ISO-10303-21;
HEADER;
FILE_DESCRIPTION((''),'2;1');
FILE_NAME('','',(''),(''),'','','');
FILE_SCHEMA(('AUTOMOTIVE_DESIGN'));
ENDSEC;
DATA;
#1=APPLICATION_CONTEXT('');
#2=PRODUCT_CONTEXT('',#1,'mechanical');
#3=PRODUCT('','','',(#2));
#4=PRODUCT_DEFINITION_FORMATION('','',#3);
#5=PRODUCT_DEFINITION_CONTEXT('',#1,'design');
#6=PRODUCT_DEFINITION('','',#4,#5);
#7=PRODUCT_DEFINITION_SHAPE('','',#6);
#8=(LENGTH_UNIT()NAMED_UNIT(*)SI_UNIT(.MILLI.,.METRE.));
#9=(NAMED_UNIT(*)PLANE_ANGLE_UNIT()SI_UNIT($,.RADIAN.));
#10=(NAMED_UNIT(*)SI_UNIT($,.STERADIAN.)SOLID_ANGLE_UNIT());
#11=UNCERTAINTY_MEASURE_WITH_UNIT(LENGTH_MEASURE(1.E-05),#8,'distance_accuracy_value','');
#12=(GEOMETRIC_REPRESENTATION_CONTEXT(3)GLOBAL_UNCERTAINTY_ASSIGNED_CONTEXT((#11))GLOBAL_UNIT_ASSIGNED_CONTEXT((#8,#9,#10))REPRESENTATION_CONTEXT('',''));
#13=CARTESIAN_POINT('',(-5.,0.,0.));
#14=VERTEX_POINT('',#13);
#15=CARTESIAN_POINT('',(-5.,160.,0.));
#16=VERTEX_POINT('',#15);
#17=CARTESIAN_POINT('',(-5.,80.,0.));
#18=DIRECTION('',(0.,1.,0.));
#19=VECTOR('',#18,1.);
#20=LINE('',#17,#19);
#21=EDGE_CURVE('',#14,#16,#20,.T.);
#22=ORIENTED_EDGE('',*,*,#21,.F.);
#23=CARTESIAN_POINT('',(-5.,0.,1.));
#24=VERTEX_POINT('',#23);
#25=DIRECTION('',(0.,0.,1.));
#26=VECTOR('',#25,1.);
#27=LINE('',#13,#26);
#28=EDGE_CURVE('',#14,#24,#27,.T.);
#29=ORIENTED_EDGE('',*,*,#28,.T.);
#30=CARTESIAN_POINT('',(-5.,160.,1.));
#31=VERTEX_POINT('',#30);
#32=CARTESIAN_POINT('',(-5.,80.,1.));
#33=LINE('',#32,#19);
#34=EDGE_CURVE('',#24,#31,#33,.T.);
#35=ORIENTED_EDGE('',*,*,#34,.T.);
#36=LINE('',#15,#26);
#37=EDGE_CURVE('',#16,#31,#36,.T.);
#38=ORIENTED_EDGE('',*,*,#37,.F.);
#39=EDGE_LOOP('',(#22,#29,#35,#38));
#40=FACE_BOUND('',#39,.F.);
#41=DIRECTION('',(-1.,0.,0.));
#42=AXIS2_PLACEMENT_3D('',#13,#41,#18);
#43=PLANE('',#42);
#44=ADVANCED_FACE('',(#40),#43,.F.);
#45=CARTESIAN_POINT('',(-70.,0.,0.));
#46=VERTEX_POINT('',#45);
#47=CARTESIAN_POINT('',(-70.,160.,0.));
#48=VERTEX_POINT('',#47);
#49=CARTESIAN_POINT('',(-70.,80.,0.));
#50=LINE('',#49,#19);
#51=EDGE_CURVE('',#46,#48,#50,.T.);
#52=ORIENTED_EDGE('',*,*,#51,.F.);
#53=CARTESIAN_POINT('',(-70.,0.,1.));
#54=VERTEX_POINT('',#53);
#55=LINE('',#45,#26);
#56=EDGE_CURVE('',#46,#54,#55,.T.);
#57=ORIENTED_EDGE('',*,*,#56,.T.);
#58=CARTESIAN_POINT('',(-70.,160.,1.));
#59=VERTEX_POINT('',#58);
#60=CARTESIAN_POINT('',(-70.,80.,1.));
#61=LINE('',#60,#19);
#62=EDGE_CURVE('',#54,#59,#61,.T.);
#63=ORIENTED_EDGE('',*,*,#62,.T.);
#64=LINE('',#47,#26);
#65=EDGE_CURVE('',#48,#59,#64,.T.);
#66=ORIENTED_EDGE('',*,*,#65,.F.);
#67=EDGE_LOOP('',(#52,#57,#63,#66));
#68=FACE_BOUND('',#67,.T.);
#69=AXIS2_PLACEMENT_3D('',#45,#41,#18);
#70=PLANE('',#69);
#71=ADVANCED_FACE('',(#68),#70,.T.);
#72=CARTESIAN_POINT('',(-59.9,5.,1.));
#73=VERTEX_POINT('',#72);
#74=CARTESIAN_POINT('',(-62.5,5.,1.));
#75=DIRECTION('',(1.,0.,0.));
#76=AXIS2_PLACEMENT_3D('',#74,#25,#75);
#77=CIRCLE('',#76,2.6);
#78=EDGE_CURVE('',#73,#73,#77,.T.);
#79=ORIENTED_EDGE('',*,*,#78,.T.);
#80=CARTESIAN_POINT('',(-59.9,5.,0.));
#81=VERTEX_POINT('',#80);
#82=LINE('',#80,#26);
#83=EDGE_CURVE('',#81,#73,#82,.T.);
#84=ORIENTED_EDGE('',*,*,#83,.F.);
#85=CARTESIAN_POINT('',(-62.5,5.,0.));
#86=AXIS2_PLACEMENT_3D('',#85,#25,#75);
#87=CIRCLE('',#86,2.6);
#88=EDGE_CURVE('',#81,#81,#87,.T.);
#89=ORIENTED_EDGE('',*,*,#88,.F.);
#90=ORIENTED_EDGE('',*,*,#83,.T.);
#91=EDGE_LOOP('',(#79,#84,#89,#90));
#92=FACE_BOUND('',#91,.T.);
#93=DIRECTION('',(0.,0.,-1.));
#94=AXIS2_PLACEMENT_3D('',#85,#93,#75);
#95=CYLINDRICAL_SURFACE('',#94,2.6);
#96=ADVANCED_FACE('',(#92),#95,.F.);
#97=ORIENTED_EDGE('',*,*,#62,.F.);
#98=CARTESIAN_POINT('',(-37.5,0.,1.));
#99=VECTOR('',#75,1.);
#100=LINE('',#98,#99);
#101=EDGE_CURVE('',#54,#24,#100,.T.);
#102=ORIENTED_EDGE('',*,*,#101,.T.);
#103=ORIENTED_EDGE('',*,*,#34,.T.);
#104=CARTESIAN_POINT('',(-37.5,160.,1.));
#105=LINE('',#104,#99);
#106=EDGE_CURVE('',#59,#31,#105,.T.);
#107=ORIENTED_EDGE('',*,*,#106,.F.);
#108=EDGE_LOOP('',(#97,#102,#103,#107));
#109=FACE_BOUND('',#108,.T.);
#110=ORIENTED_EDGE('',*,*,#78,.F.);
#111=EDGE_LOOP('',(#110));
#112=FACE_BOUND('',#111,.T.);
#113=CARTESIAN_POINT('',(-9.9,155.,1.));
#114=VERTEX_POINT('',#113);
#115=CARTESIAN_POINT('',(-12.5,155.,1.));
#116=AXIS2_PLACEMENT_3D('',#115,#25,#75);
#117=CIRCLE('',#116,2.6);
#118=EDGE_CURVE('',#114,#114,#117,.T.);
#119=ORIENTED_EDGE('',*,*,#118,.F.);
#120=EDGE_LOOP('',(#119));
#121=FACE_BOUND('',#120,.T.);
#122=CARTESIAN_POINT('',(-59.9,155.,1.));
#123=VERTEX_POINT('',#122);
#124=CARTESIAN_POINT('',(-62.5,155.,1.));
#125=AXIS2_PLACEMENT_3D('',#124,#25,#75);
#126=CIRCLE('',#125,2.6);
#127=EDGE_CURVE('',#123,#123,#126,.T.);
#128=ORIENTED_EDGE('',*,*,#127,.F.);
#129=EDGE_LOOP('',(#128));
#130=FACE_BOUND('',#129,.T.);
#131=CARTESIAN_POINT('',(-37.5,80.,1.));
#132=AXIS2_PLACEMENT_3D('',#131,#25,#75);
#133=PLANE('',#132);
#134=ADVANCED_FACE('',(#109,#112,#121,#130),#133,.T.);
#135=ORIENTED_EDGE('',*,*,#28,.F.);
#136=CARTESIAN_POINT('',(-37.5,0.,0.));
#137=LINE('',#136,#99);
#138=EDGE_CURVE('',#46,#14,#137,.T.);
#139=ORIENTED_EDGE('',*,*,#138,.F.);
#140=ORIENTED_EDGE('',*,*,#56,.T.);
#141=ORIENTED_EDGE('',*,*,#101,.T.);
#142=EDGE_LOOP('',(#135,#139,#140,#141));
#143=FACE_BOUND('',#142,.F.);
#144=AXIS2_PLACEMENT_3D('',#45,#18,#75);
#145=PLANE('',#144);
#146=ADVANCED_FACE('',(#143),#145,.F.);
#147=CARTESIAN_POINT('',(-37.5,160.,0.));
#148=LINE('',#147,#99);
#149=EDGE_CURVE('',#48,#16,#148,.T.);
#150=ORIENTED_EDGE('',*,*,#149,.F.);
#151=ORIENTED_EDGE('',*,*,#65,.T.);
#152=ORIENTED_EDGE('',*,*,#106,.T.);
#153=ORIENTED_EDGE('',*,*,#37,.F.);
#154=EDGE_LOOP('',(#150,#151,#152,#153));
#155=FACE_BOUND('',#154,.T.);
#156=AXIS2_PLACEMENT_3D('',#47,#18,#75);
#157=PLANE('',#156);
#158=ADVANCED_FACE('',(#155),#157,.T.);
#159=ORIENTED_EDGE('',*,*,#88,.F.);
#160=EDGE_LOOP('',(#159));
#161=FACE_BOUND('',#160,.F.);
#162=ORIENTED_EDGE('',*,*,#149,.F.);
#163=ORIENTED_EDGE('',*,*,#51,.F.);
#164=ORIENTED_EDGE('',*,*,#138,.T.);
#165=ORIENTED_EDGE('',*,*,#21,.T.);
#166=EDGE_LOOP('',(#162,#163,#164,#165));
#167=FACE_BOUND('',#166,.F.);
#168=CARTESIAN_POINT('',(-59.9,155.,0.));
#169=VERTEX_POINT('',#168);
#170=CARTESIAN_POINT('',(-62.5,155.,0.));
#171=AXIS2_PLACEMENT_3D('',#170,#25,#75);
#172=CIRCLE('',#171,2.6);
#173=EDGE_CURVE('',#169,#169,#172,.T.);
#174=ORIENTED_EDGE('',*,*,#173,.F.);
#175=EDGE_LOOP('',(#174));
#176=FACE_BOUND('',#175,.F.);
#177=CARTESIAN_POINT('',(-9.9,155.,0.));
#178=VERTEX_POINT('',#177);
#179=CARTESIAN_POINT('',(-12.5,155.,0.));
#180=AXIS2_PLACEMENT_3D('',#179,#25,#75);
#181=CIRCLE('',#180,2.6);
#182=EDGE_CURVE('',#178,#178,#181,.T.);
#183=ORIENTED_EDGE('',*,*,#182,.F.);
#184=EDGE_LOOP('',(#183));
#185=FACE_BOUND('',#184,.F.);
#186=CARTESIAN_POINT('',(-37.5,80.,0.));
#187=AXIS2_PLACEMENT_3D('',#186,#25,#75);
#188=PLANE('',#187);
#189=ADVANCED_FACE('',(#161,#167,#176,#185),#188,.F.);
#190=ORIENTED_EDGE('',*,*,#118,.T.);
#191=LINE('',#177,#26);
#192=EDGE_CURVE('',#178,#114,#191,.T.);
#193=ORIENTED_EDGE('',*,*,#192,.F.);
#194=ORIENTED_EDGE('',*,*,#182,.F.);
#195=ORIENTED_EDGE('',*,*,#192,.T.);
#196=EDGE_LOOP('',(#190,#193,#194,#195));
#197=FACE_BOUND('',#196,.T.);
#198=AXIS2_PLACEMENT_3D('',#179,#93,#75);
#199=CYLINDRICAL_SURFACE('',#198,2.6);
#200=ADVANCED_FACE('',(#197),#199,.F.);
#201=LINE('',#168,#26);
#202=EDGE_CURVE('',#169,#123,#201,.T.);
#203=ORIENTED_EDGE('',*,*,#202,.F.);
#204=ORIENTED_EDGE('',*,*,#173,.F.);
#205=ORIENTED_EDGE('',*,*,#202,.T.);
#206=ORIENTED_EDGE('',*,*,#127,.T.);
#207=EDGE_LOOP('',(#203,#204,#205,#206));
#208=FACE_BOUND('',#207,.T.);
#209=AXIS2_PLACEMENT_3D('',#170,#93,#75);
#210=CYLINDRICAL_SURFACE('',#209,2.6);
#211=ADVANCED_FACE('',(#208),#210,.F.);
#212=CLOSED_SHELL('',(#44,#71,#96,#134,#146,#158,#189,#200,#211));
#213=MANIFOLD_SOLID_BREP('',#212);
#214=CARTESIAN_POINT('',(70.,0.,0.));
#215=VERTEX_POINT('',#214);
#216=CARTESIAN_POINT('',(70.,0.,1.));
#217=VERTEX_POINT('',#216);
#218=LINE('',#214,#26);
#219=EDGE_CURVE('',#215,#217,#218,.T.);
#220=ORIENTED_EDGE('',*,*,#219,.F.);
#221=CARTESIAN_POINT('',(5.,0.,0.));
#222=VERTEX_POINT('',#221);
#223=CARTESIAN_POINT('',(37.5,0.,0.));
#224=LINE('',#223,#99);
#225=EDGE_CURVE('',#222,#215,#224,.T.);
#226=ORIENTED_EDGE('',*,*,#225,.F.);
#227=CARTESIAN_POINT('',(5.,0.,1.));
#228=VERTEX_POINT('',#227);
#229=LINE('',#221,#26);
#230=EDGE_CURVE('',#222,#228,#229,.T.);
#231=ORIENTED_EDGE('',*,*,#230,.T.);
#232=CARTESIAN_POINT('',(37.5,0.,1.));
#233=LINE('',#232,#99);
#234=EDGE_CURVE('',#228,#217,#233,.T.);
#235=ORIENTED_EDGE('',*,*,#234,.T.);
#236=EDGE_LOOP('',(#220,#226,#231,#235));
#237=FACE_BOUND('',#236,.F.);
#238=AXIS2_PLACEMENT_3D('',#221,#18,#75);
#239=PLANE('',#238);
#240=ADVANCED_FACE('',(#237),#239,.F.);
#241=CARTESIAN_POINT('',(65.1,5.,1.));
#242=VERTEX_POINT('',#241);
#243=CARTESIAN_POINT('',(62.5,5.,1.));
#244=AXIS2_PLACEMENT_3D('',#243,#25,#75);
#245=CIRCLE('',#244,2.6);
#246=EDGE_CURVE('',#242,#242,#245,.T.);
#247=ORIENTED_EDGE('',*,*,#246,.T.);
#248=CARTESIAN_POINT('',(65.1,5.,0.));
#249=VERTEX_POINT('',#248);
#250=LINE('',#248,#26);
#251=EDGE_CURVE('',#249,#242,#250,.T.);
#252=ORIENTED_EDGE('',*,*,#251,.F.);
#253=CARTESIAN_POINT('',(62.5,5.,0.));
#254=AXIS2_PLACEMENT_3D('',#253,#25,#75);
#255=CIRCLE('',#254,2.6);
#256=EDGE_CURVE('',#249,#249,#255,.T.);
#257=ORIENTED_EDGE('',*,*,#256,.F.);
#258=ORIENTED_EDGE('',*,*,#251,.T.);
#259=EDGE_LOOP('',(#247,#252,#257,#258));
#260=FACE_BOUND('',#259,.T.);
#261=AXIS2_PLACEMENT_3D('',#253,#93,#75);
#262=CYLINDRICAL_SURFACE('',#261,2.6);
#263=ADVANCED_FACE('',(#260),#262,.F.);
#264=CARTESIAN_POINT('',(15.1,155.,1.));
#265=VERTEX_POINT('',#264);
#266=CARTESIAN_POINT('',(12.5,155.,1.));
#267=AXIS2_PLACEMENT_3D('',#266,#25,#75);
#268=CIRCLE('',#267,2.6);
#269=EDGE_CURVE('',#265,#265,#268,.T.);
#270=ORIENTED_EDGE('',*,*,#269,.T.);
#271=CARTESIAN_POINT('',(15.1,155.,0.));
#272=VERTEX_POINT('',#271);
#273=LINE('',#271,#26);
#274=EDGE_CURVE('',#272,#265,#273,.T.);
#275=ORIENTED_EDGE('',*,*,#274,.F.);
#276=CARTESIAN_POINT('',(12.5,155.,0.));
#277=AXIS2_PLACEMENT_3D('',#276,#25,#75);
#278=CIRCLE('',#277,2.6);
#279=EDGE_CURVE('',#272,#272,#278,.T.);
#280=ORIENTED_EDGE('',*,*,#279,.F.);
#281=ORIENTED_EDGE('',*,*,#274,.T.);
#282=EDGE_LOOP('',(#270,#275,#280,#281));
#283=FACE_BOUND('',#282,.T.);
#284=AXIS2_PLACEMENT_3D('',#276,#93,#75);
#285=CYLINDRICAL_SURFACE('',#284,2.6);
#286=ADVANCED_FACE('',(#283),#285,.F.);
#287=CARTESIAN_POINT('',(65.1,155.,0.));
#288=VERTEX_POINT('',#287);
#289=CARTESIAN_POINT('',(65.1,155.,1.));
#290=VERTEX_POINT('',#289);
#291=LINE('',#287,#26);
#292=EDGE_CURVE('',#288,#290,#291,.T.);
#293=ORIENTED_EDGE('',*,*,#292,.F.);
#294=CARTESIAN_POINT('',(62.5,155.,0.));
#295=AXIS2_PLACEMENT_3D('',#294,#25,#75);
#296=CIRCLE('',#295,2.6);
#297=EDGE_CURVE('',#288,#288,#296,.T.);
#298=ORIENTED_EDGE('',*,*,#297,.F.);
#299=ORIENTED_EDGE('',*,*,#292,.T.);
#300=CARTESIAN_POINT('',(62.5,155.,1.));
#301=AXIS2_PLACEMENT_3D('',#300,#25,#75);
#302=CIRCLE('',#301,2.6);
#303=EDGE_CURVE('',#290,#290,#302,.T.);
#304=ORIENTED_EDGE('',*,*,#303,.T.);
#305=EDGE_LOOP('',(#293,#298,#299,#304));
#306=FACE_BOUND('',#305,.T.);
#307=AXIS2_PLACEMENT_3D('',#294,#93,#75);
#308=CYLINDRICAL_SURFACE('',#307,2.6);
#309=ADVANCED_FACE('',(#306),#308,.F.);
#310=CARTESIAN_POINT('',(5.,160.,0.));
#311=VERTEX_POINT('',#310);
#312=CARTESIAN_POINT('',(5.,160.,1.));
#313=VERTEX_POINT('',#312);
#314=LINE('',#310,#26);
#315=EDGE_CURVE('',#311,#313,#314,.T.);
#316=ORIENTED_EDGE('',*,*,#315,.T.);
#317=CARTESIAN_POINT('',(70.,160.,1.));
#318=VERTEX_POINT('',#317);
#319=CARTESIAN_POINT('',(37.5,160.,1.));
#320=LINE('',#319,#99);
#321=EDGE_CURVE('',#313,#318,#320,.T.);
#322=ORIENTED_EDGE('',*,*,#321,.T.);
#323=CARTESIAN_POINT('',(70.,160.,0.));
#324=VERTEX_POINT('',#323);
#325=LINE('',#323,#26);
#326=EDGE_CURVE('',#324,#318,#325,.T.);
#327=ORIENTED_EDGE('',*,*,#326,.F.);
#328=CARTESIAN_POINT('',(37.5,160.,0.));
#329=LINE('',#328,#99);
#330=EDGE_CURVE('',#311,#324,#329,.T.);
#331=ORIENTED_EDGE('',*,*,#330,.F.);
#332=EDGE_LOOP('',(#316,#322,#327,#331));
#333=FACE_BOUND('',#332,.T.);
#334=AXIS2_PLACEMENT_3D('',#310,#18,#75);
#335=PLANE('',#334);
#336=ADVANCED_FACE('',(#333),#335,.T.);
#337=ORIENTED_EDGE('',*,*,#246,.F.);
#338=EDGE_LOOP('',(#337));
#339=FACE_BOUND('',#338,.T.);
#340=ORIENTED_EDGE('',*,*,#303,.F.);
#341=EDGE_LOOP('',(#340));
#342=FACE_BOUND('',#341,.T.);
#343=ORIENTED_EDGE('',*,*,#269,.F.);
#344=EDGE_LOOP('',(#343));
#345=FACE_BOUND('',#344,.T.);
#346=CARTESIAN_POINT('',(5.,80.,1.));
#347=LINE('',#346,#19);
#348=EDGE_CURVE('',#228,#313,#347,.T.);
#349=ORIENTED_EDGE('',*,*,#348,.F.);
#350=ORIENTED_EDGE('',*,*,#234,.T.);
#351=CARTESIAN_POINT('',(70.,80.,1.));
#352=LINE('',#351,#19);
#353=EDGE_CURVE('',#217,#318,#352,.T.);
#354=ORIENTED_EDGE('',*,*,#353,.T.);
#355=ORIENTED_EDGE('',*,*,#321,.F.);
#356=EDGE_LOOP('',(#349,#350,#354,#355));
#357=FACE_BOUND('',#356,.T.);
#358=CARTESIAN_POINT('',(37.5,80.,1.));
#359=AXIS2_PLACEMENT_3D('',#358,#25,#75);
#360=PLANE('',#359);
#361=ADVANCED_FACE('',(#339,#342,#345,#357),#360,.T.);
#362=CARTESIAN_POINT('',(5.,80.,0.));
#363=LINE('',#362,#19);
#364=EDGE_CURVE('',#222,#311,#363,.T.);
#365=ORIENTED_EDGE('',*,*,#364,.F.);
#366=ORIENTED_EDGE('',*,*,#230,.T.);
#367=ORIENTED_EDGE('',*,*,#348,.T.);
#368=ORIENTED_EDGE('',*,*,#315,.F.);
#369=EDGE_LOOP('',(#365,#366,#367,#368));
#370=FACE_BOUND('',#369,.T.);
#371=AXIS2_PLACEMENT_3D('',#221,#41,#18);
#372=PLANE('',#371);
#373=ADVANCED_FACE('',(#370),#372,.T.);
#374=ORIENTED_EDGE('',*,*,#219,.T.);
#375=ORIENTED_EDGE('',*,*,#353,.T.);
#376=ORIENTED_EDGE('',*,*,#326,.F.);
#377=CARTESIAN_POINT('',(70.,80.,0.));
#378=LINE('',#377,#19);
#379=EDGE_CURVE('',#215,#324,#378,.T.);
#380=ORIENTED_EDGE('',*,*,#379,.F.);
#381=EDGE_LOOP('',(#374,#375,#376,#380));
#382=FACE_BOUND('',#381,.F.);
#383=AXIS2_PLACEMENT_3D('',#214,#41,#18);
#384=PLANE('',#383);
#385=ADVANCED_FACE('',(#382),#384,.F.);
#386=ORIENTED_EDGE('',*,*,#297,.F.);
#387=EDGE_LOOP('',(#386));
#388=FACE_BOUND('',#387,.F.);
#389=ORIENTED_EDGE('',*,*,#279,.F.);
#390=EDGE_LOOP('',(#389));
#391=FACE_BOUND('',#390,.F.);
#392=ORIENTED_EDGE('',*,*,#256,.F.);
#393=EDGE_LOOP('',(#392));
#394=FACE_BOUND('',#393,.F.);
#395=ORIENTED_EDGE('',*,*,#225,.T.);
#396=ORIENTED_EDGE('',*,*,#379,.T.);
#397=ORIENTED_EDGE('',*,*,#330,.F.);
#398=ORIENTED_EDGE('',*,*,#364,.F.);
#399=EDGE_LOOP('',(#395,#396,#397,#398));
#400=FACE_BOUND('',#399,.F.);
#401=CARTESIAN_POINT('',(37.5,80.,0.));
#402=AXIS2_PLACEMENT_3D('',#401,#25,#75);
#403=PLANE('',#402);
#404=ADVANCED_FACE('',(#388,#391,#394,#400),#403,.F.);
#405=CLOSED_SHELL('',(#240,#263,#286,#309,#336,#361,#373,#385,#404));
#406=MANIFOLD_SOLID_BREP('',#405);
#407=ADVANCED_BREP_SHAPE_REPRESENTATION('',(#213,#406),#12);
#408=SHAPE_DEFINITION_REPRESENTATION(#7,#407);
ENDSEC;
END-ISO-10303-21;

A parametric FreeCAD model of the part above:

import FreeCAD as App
import Part
import Sketcher
Q = App.Units.Quantity

doc = App.newDocument("Part")
body = doc.addObject("PartDesign::Body", "Body")
body.AllowCompound = True

# Sketch on XY plane
sketch1 = body.newObject("Sketcher::SketchObject", "Sketch")
sketch1.AttachmentSupport = (doc.getObject("XY_Plane"), [""])
sketch1.MapMode = "FlatFace"
sketch1.addGeometry([
    Part.LineSegment(App.Vector(5, 160, 0), App.Vector(5, 0, 0)),  # 0
    Part.LineSegment(App.Vector(5, 0, 0), App.Vector(70, 0, 0)),  # 1
    Part.LineSegment(App.Vector(70, 0, 0), App.Vector(70, 160, 0)),  # 2
    Part.LineSegment(App.Vector(70, 160, 0), App.Vector(5, 160, 0)),  # 3
    Part.Circle(App.Vector(62.5, 5, 0), App.Vector(0, 0, 1), 2.6),  # 4
    Part.Circle(App.Vector(12.5, 155, 0), App.Vector(0, 0, 1), 2.6),  # 5
    Part.Circle(App.Vector(62.5, 155, 0), App.Vector(0, 0, 1), 2.6),  # 6
    Part.LineSegment(App.Vector(-70, 160, 0), App.Vector(-70, 0, 0)),  # 7
    Part.LineSegment(App.Vector(-70, 0, 0), App.Vector(-5, 0, 0)),  # 8
    Part.LineSegment(App.Vector(-5, 0, 0), App.Vector(-5, 160, 0)),  # 9
    Part.LineSegment(App.Vector(-5, 160, 0), App.Vector(-70, 160, 0)),  # 10
    Part.Circle(App.Vector(-62.5, 5, 0), App.Vector(0, 0, 1), 2.6),  # 11
    Part.Circle(App.Vector(-62.5, 155, 0), App.Vector(0, 0, 1), 2.6),  # 12
    Part.Circle(App.Vector(-12.5, 155, 0), App.Vector(0, 0, 1), 2.6),  # 13
], False)
sketch1.addConstraint([
    Sketcher.Constraint("Coincident", 0, 2, 1, 1),
    Sketcher.Constraint("Coincident", 1, 2, 2, 1),
    Sketcher.Constraint("Coincident", 2, 2, 3, 1),
    Sketcher.Constraint("Coincident", 3, 2, 0, 1),
    Sketcher.Constraint("Coincident", 7, 2, 8, 1),
    Sketcher.Constraint("Coincident", 8, 2, 9, 1),
    Sketcher.Constraint("Coincident", 9, 2, 10, 1),
    Sketcher.Constraint("Coincident", 10, 2, 7, 1),
    Sketcher.Constraint("Vertical", 0),
    Sketcher.Constraint("Horizontal", 1),
    Sketcher.Constraint("Vertical", 2),
    Sketcher.Constraint("Horizontal", 3),
    Sketcher.Constraint("Vertical", 7),
    Sketcher.Constraint("Horizontal", 8),
    Sketcher.Constraint("Vertical", 9),
    Sketcher.Constraint("Horizontal", 10),
    Sketcher.Constraint("Equal", 4, 5),
    Sketcher.Constraint("Equal", 5, 6),
    Sketcher.Constraint("Equal", 6, 11),
    Sketcher.Constraint("Equal", 11, 12),
    Sketcher.Constraint("Equal", 12, 13),
    Sketcher.Constraint("Symmetric", 1, 2, 7, 2, -1, 1),
    Sketcher.Constraint("Symmetric", 4, 3, 11, 3, -2),
    Sketcher.Constraint("Symmetric", 6, 3, 12, 3, -2),
    Sketcher.Constraint("Symmetric", 5, 3, 13, 3, -2),
    Sketcher.Constraint("Symmetric", 0, 2, 8, 2, -2),
    Sketcher.Constraint("Horizontal", 5, 3, 6, 3),
    Sketcher.Constraint("Horizontal", 3, 2, 9, 2),
    Sketcher.Constraint("Vertical", 4, 3, 6, 3),
    Sketcher.Constraint("Diameter", 4, Q("5.2 mm")),
    Sketcher.Constraint("DistanceX", 1, 1, 1, 2, Q("65 mm")),
    Sketcher.Constraint("DistanceY", 0, 2, 0, 1, Q("160 mm")),
    Sketcher.Constraint("DistanceY", -1, 1, 4, 3, Q("5 mm")),
    Sketcher.Constraint("DistanceY", -1, 1, 5, 3, Q("155 mm")),
    Sketcher.Constraint("DistanceX", -1, 1, 0, 2, Q("5 mm")),
    Sketcher.Constraint("DistanceX", 5, 3, 4, 3, Q("50 mm")),
    Sketcher.Constraint("DistanceX", 11, 3, 4, 3, Q("125 mm")),
])
pad1 = body.newObject("PartDesign::Pad", "Pad")
pad1.Profile = sketch1
pad1.Length = 1

doc.recompute()
